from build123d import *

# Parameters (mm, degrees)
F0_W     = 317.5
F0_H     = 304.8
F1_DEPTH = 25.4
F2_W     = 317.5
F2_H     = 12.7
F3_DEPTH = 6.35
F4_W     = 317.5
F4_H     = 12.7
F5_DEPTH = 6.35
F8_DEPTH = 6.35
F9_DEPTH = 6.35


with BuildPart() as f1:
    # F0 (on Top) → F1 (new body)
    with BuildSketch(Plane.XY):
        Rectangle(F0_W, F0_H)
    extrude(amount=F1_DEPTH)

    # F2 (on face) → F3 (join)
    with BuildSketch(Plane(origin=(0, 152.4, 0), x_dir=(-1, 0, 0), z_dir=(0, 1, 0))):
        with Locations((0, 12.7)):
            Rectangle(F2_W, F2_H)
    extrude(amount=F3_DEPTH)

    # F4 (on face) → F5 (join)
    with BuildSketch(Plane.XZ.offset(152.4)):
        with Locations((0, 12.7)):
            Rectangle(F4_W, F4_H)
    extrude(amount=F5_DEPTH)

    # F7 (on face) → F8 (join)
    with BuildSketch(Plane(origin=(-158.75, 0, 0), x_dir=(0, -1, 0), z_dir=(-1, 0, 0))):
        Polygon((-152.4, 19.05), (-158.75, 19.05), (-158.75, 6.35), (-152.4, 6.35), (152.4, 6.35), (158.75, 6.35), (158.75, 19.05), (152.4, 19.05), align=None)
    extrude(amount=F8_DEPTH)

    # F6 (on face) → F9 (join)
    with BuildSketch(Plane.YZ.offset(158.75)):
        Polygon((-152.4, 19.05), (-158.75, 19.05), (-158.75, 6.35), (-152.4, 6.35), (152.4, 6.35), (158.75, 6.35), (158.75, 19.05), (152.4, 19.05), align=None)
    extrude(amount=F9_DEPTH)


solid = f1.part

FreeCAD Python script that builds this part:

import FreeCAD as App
import Part
import Sketcher

V = App.Vector
Q = App.Units.Quantity

doc = App.newDocument("Part")
body = doc.addObject("PartDesign::Body", "Body")

# Sketch on XY plane
sketch1 = body.newObject("Sketcher::SketchObject", "Sketch")
sketch1.AttachmentSupport = (doc.getObject("XY_Plane"), [""])
sketch1.MapMode = "FlatFace"
sketch1.addGeometry([
    Part.LineSegment(V(-158.75, 152.4, 0), V(-158.75, -152.4, 0)),
    Part.LineSegment(V(-158.75, -152.4, 0), V(158.75, -152.4, 0)),
    Part.LineSegment(V(158.75, -152.4, 0), V(158.75, 152.4, 0)),
    Part.LineSegment(V(158.75, 152.4, 0), V(-158.75, 152.4, 0)),
], False)
sketch1.addConstraint([
    Sketcher.Constraint("Coincident", 0, 2, 1, 1),
    Sketcher.Constraint("Coincident", 1, 2, 2, 1),
    Sketcher.Constraint("Coincident", 2, 2, 3, 1),
    Sketcher.Constraint("Coincident", 3, 2, 0, 1),
    Sketcher.Constraint("Vertical", 0),
    Sketcher.Constraint("Horizontal", 1),
    Sketcher.Constraint("Vertical", 2),
    Sketcher.Constraint("Horizontal", 3),
    Sketcher.Constraint("Symmetric", 0, 2, 2, 2, -1, 1),
    Sketcher.Constraint("DistanceY", 0, 2, 0, 1, Q("12 in")),
    Sketcher.Constraint("DistanceX", 1, 1, 1, 2, Q("12.5 in")),
])
pad1 = body.newObject("PartDesign::Pad", "Pad")
pad1.Profile = sketch1
pad1.Length = Q("1 in")

# Sketch on XZ plane
sketch2 = body.newObject("Sketcher::SketchObject", "Sketch001")
sketch2.AttachmentSupport = (doc.getObject("XZ_Plane"), [""])
sketch2.MapMode = "FlatFace"
sketch2.AttachmentOffset = App.Placement(V(0, 0, -6 * 25.4), App.Rotation())
sketch2.addGeometry([
    Part.LineSegment(V(158.75, 19.05, 0), V(158.75, 6.35, 0)),
    Part.LineSegment(V(158.75, 6.35, 0), V(-158.75, 6.35, 0)),
    Part.LineSegment(V(-158.75, 6.35, 0), V(-158.75, 19.05, 0)),
    Part.LineSegment(V(-158.75, 19.05, 0), V(158.75, 19.05, 0)),
], False)
sketch2.addConstraint([
    Sketcher.Constraint("Coincident", 0, 2, 1, 1),
    Sketcher.Constraint("Coincident", 1, 2, 2, 1),
    Sketcher.Constraint("Coincident", 2, 2, 3, 1),
    Sketcher.Constraint("Coincident", 3, 2, 0, 1),
    Sketcher.Constraint("Vertical", 0),
    Sketcher.Constraint("Horizontal", 1),
    Sketcher.Constraint("Vertical", 2),
    Sketcher.Constraint("Horizontal", 3),
    Sketcher.Constraint("DistanceX", 1, 2, 1, 1, Q("12.5 in")),
    Sketcher.Constraint("DistanceY", 0, 2, 0, 1, Q("0.5 in")),
    Sketcher.Constraint("DistanceX", -1, 1, 0, 2, Q("6.25 in")),
    Sketcher.Constraint("DistanceY", -1, 1, 0, 2, Q("0.25 in")),
])
pad2 = body.newObject("PartDesign::Pad", "Pad001")
pad2.Profile = sketch2
pad2.Length = Q("0.25 in")
pad2.Reversed = True

# Sketch on XZ plane
sketch3 = body.newObject("Sketcher::SketchObject", "Sketch002")
sketch3.AttachmentSupport = (doc.getObject("XZ_Plane"), [""])
sketch3.MapMode = "FlatFace"
sketch3.AttachmentOffset = App.Placement(V(0, 0, 6 * 25.4), App.Rotation())
sketch3.addGeometry([
    Part.LineSegment(V(-158.75, 19.05, 0), V(-158.75, 6.35, 0)),
    Part.LineSegment(V(-158.75, 6.35, 0), V(158.75, 6.35, 0)),
    Part.LineSegment(V(158.75, 6.35, 0), V(158.75, 19.05, 0)),
    Part.LineSegment(V(158.75, 19.05, 0), V(-158.75, 19.05, 0)),
], False)
sketch3.addConstraint([
    Sketcher.Constraint("Coincident", 0, 2, 1, 1),
    Sketcher.Constraint("Coincident", 1, 2, 2, 1),
    Sketcher.Constraint("Coincident", 2, 2, 3, 1),
    Sketcher.Constraint("Coincident", 3, 2, 0, 1),
    Sketcher.Constraint("Vertical", 0),
    Sketcher.Constraint("Horizontal", 1),
    Sketcher.Constraint("Vertical", 2),
    Sketcher.Constraint("Horizontal", 3),
    Sketcher.Constraint("DistanceX", 1, 1, 1, 2, Q("12.5 in")),
    Sketcher.Constraint("DistanceY", 0, 2, 0, 1, Q("0.5 in")),
    Sketcher.Constraint("DistanceX", 0, 2, -1, 1, Q("6.25 in")),
    Sketcher.Constraint("DistanceY", -1, 1, 0, 2, Q("0.25 in")),
])
pad3 = body.newObject("PartDesign::Pad", "Pad002")
pad3.Profile = sketch3
pad3.Length = Q("0.25 in")

# Sketch on YZ plane
sketch4 = body.newObject("Sketcher::SketchObject", "Sketch003")
sketch4.AttachmentSupport = (doc.getObject("YZ_Plane"), [""])
sketch4.MapMode = "FlatFace"
sketch4.AttachmentOffset = App.Placement(V(0, 0, -6.25 * 25.4), App.Rotation())
sketch4.addGeometry([
    Part.LineSegment(V(158.75, 19.05, 0), V(158.75, 6.35, 0)),
    Part.LineSegment(V(158.75, 6.35, 0), V(-158.75, 6.35, 0)),
    Part.LineSegment(V(-158.75, 6.35, 0), V(-158.75, 19.05, 0)),
    Part.LineSegment(V(-158.75, 19.05, 0), V(158.75, 19.05, 0)),
], False)
sketch4.addConstraint([
    Sketcher.Constraint("Coincident", 0, 2, 1, 1),
    Sketcher.Constraint("Coincident", 1, 2, 2, 1),
    Sketcher.Constraint("Coincident", 2, 2, 3, 1),
    Sketcher.Constraint("Coincident", 3, 2, 0, 1),
    Sketcher.Constraint("Vertical", 0),
    Sketcher.Constraint("Horizontal", 1),
    Sketcher.Constraint("Vertical", 2),
    Sketcher.Constraint("Horizontal", 3),
    Sketcher.Constraint("DistanceX", 1, 2, 1, 1, Q("12.5 in")),
    Sketcher.Constraint("DistanceY", 0, 2, 0, 1, Q("0.5 in")),
    Sketcher.Constraint("DistanceX", -1, 1, 0, 2, Q("6.25 in")),
    Sketcher.Constraint("DistanceY", -1, 1, 0, 2, Q("0.25 in")),
])
pad4 = body.newObject("PartDesign::Pad", "Pad003")
pad4.Profile = sketch4
pad4.Length = Q("0.25 in")
pad4.Reversed = True

# Sketch on YZ plane
sketch5 = body.newObject("Sketcher::SketchObject", "Sketch004")
sketch5.AttachmentSupport = (doc.getObject("YZ_Plane"), [""])
sketch5.MapMode = "FlatFace"
sketch5.AttachmentOffset = App.Placement(V(0, 0, 6.25 * 25.4), App.Rotation())
sketch5.addGeometry([
    Part.LineSegment(V(-158.75, 19.05, 0), V(-158.75, 6.35, 0)),
    Part.LineSegment(V(-158.75, 6.35, 0), V(158.75, 6.35, 0)),
    Part.LineSegment(V(158.75, 6.35, 0), V(158.75, 19.05, 0)),
    Part.LineSegment(V(158.75, 19.05, 0), V(-158.75, 19.05, 0)),
], False)
sketch5.addConstraint([
    Sketcher.Constraint("Coincident", 0, 2, 1, 1),
    Sketcher.Constraint("Coincident", 1, 2, 2, 1),
    Sketcher.Constraint("Coincident", 2, 2, 3, 1),
    Sketcher.Constraint("Coincident", 3, 2, 0, 1),
    Sketcher.Constraint("Vertical", 0),
    Sketcher.Constraint("Horizontal", 1),
    Sketcher.Constraint("Vertical", 2),
    Sketcher.Constraint("Horizontal", 3),
    Sketcher.Constraint("DistanceX", 1, 1, 1, 2, Q("12.5 in")),
    Sketcher.Constraint("DistanceY", 0, 2, 0, 1, Q("0.5 in")),
    Sketcher.Constraint("DistanceX", 0, 2, -1, 1, Q("6.25 in")),
    Sketcher.Constraint("DistanceY", -1, 1, 0, 2, Q("0.25 in")),
])
pad5 = body.newObject("PartDesign::Pad", "Pad004")
pad5.Profile = sketch5
pad5.Length = Q("0.25 in")

doc.recompute()
